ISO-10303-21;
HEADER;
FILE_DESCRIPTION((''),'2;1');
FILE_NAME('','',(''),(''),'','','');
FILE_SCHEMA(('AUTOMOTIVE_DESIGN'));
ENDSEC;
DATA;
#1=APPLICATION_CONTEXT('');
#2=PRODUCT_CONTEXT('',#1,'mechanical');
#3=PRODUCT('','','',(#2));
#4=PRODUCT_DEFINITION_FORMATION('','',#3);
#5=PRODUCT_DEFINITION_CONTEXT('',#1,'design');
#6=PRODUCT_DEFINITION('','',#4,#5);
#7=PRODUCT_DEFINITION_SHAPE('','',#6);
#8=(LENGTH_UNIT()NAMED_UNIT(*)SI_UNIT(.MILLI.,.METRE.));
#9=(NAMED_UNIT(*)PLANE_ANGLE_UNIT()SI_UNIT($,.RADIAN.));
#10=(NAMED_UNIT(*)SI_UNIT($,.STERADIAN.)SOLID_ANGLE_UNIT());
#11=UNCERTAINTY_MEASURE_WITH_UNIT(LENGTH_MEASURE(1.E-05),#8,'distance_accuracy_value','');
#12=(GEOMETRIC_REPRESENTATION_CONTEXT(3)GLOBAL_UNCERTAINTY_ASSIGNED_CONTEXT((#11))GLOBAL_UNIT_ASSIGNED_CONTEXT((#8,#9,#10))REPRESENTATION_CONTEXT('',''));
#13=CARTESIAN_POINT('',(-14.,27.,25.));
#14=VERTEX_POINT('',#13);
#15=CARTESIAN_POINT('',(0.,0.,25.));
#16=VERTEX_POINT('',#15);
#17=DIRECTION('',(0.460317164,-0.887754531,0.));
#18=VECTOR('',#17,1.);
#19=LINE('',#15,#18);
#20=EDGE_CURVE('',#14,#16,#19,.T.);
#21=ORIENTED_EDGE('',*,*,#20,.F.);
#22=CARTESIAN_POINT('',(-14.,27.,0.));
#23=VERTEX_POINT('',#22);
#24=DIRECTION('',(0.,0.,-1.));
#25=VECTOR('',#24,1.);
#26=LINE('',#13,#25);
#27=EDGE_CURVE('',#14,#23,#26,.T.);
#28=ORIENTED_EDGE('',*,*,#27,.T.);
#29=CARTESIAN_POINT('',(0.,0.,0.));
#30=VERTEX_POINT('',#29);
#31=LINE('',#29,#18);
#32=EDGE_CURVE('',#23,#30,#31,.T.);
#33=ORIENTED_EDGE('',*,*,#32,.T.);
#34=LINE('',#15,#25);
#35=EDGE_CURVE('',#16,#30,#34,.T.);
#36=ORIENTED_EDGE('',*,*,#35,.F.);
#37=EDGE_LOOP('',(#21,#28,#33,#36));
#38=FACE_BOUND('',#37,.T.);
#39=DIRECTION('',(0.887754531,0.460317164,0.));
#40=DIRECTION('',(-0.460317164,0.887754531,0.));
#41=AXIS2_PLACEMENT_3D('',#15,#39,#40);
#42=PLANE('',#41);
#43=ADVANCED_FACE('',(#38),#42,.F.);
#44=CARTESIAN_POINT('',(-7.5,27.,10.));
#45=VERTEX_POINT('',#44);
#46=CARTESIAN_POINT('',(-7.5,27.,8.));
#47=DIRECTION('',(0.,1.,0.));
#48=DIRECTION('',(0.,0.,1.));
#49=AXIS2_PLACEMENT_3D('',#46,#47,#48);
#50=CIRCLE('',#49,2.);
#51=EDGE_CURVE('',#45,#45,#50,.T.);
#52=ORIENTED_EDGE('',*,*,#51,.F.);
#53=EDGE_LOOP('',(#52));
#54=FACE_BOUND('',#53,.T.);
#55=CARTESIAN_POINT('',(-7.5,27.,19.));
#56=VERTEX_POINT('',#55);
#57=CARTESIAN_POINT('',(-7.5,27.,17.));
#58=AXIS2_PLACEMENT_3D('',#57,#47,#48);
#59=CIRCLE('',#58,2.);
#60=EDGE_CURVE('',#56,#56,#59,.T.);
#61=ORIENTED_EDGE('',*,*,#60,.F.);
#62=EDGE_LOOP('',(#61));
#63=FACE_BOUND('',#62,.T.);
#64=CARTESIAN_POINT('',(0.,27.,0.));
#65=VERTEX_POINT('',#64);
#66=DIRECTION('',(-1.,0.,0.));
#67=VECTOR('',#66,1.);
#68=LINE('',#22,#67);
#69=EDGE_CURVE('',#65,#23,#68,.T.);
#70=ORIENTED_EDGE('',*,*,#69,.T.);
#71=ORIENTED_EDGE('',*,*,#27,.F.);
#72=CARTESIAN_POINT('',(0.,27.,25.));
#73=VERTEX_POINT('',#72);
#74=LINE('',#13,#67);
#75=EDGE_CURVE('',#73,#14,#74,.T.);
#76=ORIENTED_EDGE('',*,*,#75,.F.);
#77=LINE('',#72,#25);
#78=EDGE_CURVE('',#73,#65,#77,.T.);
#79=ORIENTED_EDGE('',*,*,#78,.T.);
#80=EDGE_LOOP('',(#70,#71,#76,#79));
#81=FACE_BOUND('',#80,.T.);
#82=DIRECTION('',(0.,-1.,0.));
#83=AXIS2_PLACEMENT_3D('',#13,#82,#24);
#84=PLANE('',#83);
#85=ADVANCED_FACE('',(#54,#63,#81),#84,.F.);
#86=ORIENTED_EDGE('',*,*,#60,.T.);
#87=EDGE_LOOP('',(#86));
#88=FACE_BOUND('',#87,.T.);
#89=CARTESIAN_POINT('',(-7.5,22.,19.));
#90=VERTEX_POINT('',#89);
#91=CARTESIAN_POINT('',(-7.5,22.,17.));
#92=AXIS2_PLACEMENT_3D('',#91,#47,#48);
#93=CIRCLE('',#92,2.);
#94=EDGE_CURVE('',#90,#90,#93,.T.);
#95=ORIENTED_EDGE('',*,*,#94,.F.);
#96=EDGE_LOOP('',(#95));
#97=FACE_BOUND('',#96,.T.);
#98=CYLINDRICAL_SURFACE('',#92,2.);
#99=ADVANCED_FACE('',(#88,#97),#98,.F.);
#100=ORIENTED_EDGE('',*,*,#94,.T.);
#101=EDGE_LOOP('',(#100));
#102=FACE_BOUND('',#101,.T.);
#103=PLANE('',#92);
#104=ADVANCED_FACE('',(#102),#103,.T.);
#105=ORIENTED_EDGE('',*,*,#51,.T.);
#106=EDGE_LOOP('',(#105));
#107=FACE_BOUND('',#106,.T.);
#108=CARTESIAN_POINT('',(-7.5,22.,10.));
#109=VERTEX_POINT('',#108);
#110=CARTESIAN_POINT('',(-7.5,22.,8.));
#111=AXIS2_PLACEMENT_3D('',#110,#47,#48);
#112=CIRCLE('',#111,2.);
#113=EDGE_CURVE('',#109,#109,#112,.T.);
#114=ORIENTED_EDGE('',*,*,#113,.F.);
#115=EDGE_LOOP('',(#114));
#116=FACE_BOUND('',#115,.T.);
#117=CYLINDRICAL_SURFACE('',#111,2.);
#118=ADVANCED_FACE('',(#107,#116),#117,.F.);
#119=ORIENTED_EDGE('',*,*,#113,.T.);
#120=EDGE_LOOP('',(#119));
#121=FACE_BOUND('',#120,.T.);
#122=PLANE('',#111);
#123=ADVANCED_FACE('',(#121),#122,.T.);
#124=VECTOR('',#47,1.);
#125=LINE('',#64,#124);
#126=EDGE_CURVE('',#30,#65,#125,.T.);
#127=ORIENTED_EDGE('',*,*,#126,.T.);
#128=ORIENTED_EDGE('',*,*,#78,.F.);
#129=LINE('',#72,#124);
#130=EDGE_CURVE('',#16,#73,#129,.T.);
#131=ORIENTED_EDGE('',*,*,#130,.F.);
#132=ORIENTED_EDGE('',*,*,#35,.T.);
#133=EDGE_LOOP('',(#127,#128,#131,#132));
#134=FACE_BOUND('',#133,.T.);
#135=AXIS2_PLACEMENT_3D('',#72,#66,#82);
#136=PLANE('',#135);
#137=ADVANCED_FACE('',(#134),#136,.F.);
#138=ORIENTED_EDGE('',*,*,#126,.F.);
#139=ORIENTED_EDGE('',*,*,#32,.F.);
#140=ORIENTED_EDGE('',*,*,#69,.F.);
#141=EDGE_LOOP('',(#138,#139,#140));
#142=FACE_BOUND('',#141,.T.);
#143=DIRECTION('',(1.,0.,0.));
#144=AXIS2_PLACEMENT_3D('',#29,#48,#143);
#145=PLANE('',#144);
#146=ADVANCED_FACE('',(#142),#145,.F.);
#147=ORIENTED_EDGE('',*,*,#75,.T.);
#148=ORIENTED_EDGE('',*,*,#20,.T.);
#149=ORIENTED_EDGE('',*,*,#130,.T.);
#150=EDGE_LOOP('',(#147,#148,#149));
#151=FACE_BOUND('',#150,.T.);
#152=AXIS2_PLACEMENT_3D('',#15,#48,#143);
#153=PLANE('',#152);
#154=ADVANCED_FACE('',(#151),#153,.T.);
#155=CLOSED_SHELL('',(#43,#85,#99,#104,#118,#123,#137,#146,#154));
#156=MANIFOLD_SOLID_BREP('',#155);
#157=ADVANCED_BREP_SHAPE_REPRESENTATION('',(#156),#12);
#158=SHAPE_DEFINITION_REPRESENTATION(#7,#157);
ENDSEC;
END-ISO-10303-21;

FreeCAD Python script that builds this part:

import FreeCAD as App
import Part
import Sketcher
from FreeCAD import Vector
Q = App.Units.Quantity

doc = App.newDocument("Part")
body = doc.addObject("PartDesign::Body", "Body")

# Sketch on XY plane
sketch1 = body.newObject("Sketcher::SketchObject", "Sketch")
sketch1.AttachmentSupport = (doc.getObject("XY_Plane"), [""])
sketch1.MapMode = "FlatFace"
sketch1.addGeometry([
    Part.LineSegment(Vector(-14, 27, 0), Vector(0, 0, 0)),
    Part.LineSegment(Vector(0, 0, 0), Vector(0, 27, 0)),
    Part.LineSegment(Vector(0, 27, 0), Vector(-14, 27, 0)),
], False)
sketch1.addConstraint([
    Sketcher.Constraint("Coincident", 0, 2, 1, 1),
    Sketcher.Constraint("Coincident", 1, 2, 2, 1),
    Sketcher.Constraint("Coincident", 2, 2, 0, 1),
    Sketcher.Constraint("Vertical", 1),
    Sketcher.Constraint("Horizontal", 2),
    Sketcher.Constraint("Coincident", 0, 2, -1, 1),
    Sketcher.Constraint("DistanceX", 2, 2, 2, 1, Q("14 mm")),
    Sketcher.Constraint("DistanceY", 1, 1, 1, 2, Q("27 mm")),
])
pad1 = body.newObject("PartDesign::Pad", "Pad")
pad1.Profile = sketch1
pad1.Length = 25

# Sketch on XZ plane
sketch2 = body.newObject("Sketcher::SketchObject", "Sketch001")
sketch2.AttachmentSupport = (doc.getObject("XZ_Plane"), [""])
sketch2.MapMode = "FlatFace"
sketch2.AttachmentOffset = App.Placement(Vector(0, 0, -27), App.Rotation())
sketch2.addGeometry([
    Part.Circle(Vector(-7.5, 8, 0), Vector(0, 0, 1), 2),
    Part.Circle(Vector(-7.5, 17, 0), Vector(0, 0, 1), 2),
], False)
sketch2.addConstraint([
    Sketcher.Constraint("Equal", 0, 1),
    Sketcher.Constraint("Vertical", 0, 3, 1, 3),
    Sketcher.Constraint("Diameter", 0, Q("4 mm")),
    Sketcher.Constraint("DistanceY", -1, 1, 0, 3, Q("8 mm")),
    Sketcher.Constraint("DistanceY", -1, 1, 1, 3, Q("17 mm")),
    Sketcher.Constraint("DistanceX", 0, 3, -1, 1, Q("7.5 mm")),
])
pocket1 = body.newObject("PartDesign::Pocket", "Pocket")
pocket1.Profile = sketch2
pocket1.Length = 5
pocket1.Reversed = True

doc.recompute()
